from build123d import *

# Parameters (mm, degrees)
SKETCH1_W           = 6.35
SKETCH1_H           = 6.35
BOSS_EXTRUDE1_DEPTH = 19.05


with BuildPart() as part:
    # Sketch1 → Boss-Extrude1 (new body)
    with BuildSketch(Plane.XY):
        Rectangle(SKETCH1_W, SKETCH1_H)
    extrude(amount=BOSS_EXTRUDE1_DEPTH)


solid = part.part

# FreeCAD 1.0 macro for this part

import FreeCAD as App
import Part
import Sketcher
from FreeCAD import Vector
Q = App.Units.Quantity

doc = App.newDocument("Part")
body = doc.addObject("PartDesign::Body", "Body")

sketch1 = body.newObject("Sketcher::SketchObject", "Sketch")
sketch1.AttachmentSupport = (doc.getObject("XY_Plane"), [""])
sketch1.MapMode = "FlatFace"
sketch1.addGeometry([
    Part.LineSegment(Vector(-3, 3, 0), Vector(-3, -3, 0)),
    Part.LineSegment(Vector(-3, -3, 0), Vector(3, -3, 0)),
    Part.LineSegment(Vector(3, -3, 0), Vector(3, 3, 0)),
    Part.LineSegment(Vector(3, 3, 0), Vector(-3, 3, 0)),
], False)
sketch1.addConstraint([
    Sketcher.Constraint("Coincident", 0, 2, 1, 1),
    Sketcher.Constraint("Coincident", 1, 2, 2, 1),
    Sketcher.Constraint("Coincident", 2, 2, 3, 1),
    Sketcher.Constraint("Coincident", 3, 2, 0, 1),
    Sketcher.Constraint("Vertical", 0),
    Sketcher.Constraint("Horizontal", 1),
    Sketcher.Constraint("Vertical", 2),
    Sketcher.Constraint("Horizontal", 3),
    Sketcher.Constraint("Symmetric", 0, 2, 2, 2, -1, 1),
    Sketcher.Constraint("Equal", 3, 0),
    Sketcher.Constraint("DistanceX", 1, 1, 1, 2, Q("0.25 in")),
])
pad1 = body.newObject("PartDesign::Pad", "Pad")
pad1.Profile = sketch1
pad1.Length = Q("0.75 in")

doc.recompute()
